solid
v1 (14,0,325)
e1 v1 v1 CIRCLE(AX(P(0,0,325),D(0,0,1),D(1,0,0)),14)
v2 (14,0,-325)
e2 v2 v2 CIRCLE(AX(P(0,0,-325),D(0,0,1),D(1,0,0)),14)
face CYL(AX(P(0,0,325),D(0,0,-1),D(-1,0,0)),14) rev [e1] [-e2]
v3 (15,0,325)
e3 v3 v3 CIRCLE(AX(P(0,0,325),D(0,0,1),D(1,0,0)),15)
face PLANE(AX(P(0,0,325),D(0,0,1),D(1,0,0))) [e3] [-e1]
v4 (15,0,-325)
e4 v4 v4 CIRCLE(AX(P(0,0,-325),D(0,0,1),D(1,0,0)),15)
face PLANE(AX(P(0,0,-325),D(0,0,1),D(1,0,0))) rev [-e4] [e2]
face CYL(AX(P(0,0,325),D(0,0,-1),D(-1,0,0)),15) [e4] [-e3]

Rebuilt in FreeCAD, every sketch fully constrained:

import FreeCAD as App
import Part
import Sketcher
from FreeCAD import Vector

doc = App.newDocument("Part")
body = doc.addObject("PartDesign::Body", "Body")

sketch1 = doc.addObject("Sketcher::SketchObject", "Sketch")
body.addObject(sketch1)
sketch1.AttachmentSupport = (doc.XY_Plane, [""])
sketch1.MapMode = "FlatFace"
sketch1.addGeometry(Part.Circle(Vector(0, 0, 0), Vector(0, 0, 1), 15), False)
sketch1.addGeometry(Part.Circle(Vector(0, 0, 0), Vector(0, 0, 1), 14), False)
sketch1.addConstraint(Sketcher.Constraint("Coincident", 0, 3, -1, 1))
sketch1.addConstraint(Sketcher.Constraint("Coincident", 1, 3, -1, 1))
sketch1.addConstraint(Sketcher.Constraint("Diameter", 0, 30.0))
sketch1.addConstraint(Sketcher.Constraint("Diameter", 1, 28.0))
pad1 = doc.addObject("PartDesign::Pad", "Pad")
body.addObject(pad1)
pad1.Profile = sketch1
pad1.Length = 650
pad1.Midplane = True

doc.recompute()
